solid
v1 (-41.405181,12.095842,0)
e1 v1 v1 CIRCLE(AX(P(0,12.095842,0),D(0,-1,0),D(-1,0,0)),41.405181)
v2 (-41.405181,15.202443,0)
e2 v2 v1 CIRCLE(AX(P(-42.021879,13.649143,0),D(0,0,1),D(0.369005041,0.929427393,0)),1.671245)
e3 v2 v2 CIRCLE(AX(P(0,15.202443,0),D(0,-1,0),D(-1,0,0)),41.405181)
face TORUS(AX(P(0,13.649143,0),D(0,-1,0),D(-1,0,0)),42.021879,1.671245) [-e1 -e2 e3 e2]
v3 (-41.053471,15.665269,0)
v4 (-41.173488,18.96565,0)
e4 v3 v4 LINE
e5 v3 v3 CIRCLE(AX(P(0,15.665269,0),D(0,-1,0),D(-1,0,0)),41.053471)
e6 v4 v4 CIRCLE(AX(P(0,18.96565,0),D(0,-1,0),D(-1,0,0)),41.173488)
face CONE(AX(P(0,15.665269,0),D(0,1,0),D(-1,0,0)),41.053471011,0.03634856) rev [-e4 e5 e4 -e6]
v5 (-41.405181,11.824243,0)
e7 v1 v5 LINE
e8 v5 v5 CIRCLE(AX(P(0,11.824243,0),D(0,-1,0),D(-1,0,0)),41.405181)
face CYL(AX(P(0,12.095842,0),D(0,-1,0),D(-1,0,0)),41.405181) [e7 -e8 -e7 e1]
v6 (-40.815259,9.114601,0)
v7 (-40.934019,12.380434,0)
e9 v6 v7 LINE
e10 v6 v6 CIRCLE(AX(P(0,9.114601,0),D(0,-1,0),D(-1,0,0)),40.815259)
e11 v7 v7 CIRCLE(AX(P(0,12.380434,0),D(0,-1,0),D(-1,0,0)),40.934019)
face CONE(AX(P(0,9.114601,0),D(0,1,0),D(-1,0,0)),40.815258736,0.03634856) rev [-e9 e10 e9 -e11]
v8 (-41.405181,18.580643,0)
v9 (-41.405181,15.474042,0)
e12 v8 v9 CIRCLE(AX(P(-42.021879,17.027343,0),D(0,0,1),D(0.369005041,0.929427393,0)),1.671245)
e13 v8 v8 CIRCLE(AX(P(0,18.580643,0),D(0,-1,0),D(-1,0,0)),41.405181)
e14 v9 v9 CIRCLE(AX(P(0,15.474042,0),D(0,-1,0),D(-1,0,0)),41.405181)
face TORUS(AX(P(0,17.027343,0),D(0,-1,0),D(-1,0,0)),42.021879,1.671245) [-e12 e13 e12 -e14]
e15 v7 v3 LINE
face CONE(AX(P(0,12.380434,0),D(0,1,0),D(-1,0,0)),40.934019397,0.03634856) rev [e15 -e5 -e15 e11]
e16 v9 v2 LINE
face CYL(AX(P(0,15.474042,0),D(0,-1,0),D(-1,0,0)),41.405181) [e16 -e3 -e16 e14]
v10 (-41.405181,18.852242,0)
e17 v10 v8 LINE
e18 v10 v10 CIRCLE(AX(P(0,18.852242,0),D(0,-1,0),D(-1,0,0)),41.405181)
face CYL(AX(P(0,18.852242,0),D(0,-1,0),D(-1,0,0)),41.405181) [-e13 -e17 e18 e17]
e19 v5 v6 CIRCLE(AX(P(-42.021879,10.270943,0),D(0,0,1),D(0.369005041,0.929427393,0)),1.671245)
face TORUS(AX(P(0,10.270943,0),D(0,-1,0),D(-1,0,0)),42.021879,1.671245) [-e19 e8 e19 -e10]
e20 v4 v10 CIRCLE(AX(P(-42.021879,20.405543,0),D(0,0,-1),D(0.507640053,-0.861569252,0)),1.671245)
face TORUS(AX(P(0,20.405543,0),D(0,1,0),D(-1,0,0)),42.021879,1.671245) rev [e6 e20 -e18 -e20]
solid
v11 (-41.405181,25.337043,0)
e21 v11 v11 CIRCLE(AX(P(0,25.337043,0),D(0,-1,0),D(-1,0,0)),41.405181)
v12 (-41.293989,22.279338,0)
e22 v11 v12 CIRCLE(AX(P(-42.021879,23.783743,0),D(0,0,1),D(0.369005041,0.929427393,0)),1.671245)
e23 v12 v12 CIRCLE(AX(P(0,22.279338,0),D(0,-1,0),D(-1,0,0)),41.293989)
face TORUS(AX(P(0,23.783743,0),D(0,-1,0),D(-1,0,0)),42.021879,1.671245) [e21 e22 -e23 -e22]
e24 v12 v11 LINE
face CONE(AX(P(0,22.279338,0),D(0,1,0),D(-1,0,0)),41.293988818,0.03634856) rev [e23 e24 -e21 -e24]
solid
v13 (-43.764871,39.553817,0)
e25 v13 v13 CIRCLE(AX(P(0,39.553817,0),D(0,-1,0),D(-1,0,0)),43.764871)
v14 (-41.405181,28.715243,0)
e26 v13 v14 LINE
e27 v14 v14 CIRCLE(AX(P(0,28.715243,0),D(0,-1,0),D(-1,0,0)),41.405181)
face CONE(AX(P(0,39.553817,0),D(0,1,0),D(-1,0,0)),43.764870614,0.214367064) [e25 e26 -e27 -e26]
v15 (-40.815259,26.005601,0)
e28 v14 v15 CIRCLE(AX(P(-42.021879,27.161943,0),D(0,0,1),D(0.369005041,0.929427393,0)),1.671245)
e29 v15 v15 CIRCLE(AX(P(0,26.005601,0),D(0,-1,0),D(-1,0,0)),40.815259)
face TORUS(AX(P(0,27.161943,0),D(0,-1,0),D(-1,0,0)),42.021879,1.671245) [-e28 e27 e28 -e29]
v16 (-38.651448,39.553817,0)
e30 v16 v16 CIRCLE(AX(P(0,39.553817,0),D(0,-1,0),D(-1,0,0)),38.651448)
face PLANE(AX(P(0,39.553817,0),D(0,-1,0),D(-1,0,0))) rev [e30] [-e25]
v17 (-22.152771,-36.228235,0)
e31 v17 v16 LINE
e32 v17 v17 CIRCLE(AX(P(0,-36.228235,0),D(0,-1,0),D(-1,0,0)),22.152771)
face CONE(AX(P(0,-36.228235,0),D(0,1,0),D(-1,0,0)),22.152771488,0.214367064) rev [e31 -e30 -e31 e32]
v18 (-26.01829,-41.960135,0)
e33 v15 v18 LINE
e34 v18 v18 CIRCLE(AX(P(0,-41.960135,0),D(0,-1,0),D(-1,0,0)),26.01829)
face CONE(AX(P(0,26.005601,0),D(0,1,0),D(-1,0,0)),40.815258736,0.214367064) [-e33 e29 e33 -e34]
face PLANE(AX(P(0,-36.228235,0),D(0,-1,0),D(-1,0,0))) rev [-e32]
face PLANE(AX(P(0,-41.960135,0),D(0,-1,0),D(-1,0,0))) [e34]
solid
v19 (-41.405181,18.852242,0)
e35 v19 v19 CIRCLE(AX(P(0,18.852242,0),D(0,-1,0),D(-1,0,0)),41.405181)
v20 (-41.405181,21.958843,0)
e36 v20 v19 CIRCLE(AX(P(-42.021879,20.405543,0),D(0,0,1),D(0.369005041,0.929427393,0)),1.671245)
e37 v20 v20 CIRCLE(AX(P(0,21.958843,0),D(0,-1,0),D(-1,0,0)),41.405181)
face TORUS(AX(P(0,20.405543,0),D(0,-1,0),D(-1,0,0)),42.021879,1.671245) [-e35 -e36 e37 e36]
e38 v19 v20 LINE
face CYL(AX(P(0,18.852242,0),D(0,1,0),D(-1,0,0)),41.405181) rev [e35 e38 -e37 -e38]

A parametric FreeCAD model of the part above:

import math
import FreeCAD as App
import Part
import Sketcher
from FreeCAD import Vector

doc = App.newDocument("Part")
body = doc.addObject("PartDesign::Body", "Body")

# Sketch on XY plane
sketch1 = body.newObject("Sketcher::SketchObject", "Sketch")
sketch1.AttachmentSupport = (doc.getObject("XY_Plane"), [""])
sketch1.MapMode = "FlatFace"
sketch1.addGeometry(Part.LineSegment(Vector(-38.651448, 39.553817, 0), Vector(-43.764871, 39.553817, 0)), False)
sketch1.addGeometry(Part.LineSegment(Vector(-43.764871, 39.553817, 0), Vector(-41.405181, 28.715243, 0)), False)
sketch1.addGeometry(Part.ArcOfCircle(Part.Circle(Vector(-42.021879, 27.161943, 0), Vector(0, 0, 1), 1.671245), math.radians(68.345731), math.radians(316.218925)), False)
sketch1.addGeometry(Part.LineSegment(Vector(-40.815259, 26.005601, 0), Vector(-26.01829, -41.960135, 0)), False)
sketch1.addGeometry(Part.LineSegment(Vector(-26.01829, -41.960135, 0), Vector(0, -41.960135, 0)), False)
sketch1.addGeometry(Part.LineSegment(Vector(0, -41.960135, 0), Vector(0, -36.228235, 0)), False)
sketch1.addGeometry(Part.LineSegment(Vector(0, -36.228235, 0), Vector(-22.152771, -36.228235, 0)), False)
sketch1.addGeometry(Part.LineSegment(Vector(-22.152771, -36.228235, 0), Vector(-38.651448, 39.553817, 0)), False)
sketch1.addConstraint(Sketcher.Constraint("Coincident", 0, 2, 1, 1))
sketch1.addConstraint(Sketcher.Constraint("Coincident", 1, 2, 2, 1))
sketch1.addConstraint(Sketcher.Constraint("Coincident", 2, 2, 3, 1))
sketch1.addConstraint(Sketcher.Constraint("Coincident", 3, 2, 4, 1))
sketch1.addConstraint(Sketcher.Constraint("Coincident", 4, 2, 5, 1))
sketch1.addConstraint(Sketcher.Constraint("Coincident", 5, 2, 6, 1))
sketch1.addConstraint(Sketcher.Constraint("Coincident", 6, 2, 7, 1))
sketch1.addConstraint(Sketcher.Constraint("Coincident", 7, 2, 0, 1))
sketch1.addConstraint(Sketcher.Constraint("Horizontal", 0))
sketch1.addConstraint(Sketcher.Constraint("Horizontal", 4))
sketch1.addConstraint(Sketcher.Constraint("Vertical", 5))
sketch1.addConstraint(Sketcher.Constraint("Horizontal", 6))
sketch1.addConstraint(Sketcher.Constraint("PointOnObject", 4, 2, -2))
sketch1.addConstraint(Sketcher.Constraint("Parallel", 1, 3))
sketch1.addConstraint(Sketcher.Constraint("Parallel", 3, 7))
sketch1.addConstraint(Sketcher.Constraint("DistanceY", 5, 1, 5, 2, 5.7319))
sketch1.addConstraint(Sketcher.Constraint("Radius", 2, 1.671245))
sketch1.addConstraint(Sketcher.Constraint("DistanceX", 4, 1, 4, 2, 26.01829))
sketch1.addConstraint(Sketcher.Constraint("DistanceX", 6, 2, 6, 1, 22.152771))
sketch1.addConstraint(Sketcher.Constraint("DistanceY", -1, 1, 2, 2, 26.005601))
sketch1.addConstraint(Sketcher.Constraint("DistanceY", 2, 3, 1, 2, 1.553301))
sketch1.addConstraint(Sketcher.Constraint("Distance", 3, 69.557829))
sketch1.addConstraint(Sketcher.Constraint("Distance", 7, 77.557242))
sketch1.addConstraint(Sketcher.Constraint("DistanceX", 0, 2, 0, 1, 5.113423))
sketch1.addConstraint(Sketcher.Constraint("DistanceX", 2, 3, -1, 1, 42.021879))
revolution = body.newObject("PartDesign::Revolution", "Revolution")
revolution.Profile = sketch1
revolution.ReferenceAxis = (sketch1, ["V_Axis"])
revolution.Angle = 360
body2 = doc.addObject("PartDesign::Body", "Body001")

# Sketch on XY plane
sketch2 = body2.newObject("Sketcher::SketchObject", "Sketch001")
sketch2.AttachmentSupport = (doc.getObject("XY_Plane001"), [""])
sketch2.MapMode = "FlatFace"
sketch2.addGeometry(Part.LineSegment(Vector(-40.815259, 9.114601, 0), Vector(-40.934019, 12.380434, 0)), False)
sketch2.addGeometry(Part.LineSegment(Vector(-40.934019, 12.380434, 0), Vector(-41.053471, 15.665269, 0)), False)
sketch2.addGeometry(Part.LineSegment(Vector(-41.053471, 15.665269, 0), Vector(-41.173488, 18.96565, 0)), False)
sketch2.addGeometry(Part.ArcOfCircle(Part.Circle(Vector(-42.021879, 20.405543, 0), Vector(0, 0, 1), 1.671245), math.radians(-68.345731), math.radians(-59.493238)), False)
sketch2.addGeometry(Part.LineSegment(Vector(-41.405181, 18.852242, 0), Vector(-41.405181, 18.580643, 0)), False)
sketch2.addGeometry(Part.ArcOfCircle(Part.Circle(Vector(-42.021879, 17.027343, 0), Vector(0, 0, 1), 1.671245), math.radians(68.345731), math.radians(291.654269)), False)
sketch2.addGeometry(Part.LineSegment(Vector(-41.405181, 15.474042, 0), Vector(-41.405181, 15.202443, 0)), False)
sketch2.addGeometry(Part.ArcOfCircle(Part.Circle(Vector(-42.021879, 13.649143, 0), Vector(0, 0, 1), 1.671245), math.radians(68.345731), math.radians(291.654269)), False)
sketch2.addGeometry(Part.LineSegment(Vector(-41.405181, 12.095842, 0), Vector(-41.405181, 11.824243, 0)), False)
sketch2.addGeometry(Part.ArcOfCircle(Part.Circle(Vector(-42.021879, 10.270943, 0), Vector(0, 0, 1), 1.671245), math.radians(68.345731), math.radians(316.218925)), False)
sketch2.addConstraint(Sketcher.Constraint("Coincident", 0, 2, 1, 1))
sketch2.addConstraint(Sketcher.Constraint("Coincident", 1, 2, 2, 1))
sketch2.addConstraint(Sketcher.Constraint("Coincident", 2, 2, 3, 2))
sketch2.addConstraint(Sketcher.Constraint("Coincident", 3, 1, 4, 1))
sketch2.addConstraint(Sketcher.Constraint("Coincident", 4, 2, 5, 1))
sketch2.addConstraint(Sketcher.Constraint("Coincident", 5, 2, 6, 1))
sketch2.addConstraint(Sketcher.Constraint("Coincident", 6, 2, 7, 1))
sketch2.addConstraint(Sketcher.Constraint("Coincident", 7, 2, 8, 1))
sketch2.addConstraint(Sketcher.Constraint("Coincident", 8, 2, 9, 1))
sketch2.addConstraint(Sketcher.Constraint("Coincident", 9, 2, 0, 1))
sketch2.addConstraint(Sketcher.Constraint("Vertical", 4))
sketch2.addConstraint(Sketcher.Constraint("Vertical", 6))
sketch2.addConstraint(Sketcher.Constraint("Vertical", 8))
sketch2.addConstraint(Sketcher.Constraint("Equal", 3, 5))
sketch2.addConstraint(Sketcher.Constraint("Equal", 5, 7))
sketch2.addConstraint(Sketcher.Constraint("Equal", 7, 9))
sketch2.addConstraint(Sketcher.Constraint("Parallel", 0, 1))
sketch2.addConstraint(Sketcher.Constraint("Parallel", 1, 2))
sketch2.addConstraint(Sketcher.Constraint("Vertical", 3, 3, 5, 3))
sketch2.addConstraint(Sketcher.Constraint("Vertical", 5, 3, 7, 3))
sketch2.addConstraint(Sketcher.Constraint("Vertical", 7, 3, 9, 3))
sketch2.addConstraint(Sketcher.Constraint("Vertical", 4, 2, 5, 2))
sketch2.addConstraint(Sketcher.Constraint("Vertical", 6, 2, 7, 2))
sketch2.addConstraint(Sketcher.Constraint("Equal", 4, 6))
sketch2.addConstraint(Sketcher.Constraint("Equal", 6, 8))
sketch2.addConstraint(Sketcher.Constraint("DistanceY", 4, 2, 4, 1, 0.271599))
sketch2.addConstraint(Sketcher.Constraint("Radius", 3, 1.671245))
sketch2.addConstraint(Sketcher.Constraint("DistanceY", -1, 1, 9, 2, 9.114601))
sketch2.addConstraint(Sketcher.Constraint("DistanceY", 5, 3, 3, 3, 3.3782))
sketch2.addConstraint(Sketcher.Constraint("DistanceX", 3, 3, -1, 1, 42.021879))
sketch2.addConstraint(Sketcher.Constraint("DistanceX", 0, 2, -1, 1, 40.934019))
sketch2.addConstraint(Sketcher.Constraint("DistanceX", 1, 2, -1, 1, 41.053471))
sketch2.addConstraint(Sketcher.Constraint("DistanceY", -1, 1, 1, 2, 15.665269))
sketch2.addConstraint(Sketcher.Constraint("DistanceY", -1, 1, 2, 2, 18.96565))
revolution2 = body2.newObject("PartDesign::Revolution", "Revolution001")
revolution2.Profile = sketch2
revolution2.ReferenceAxis = (sketch2, ["V_Axis"])
revolution2.Angle = 360
body3 = doc.addObject("PartDesign::Body", "Body002")

# Sketch on XY plane
sketch3 = body3.newObject("Sketcher::SketchObject", "Sketch002")
sketch3.AttachmentSupport = (doc.getObject("XY_Plane002"), [""])
sketch3.MapMode = "FlatFace"
sketch3.addGeometry(Part.LineSegment(Vector(-41.293989, 22.279338, 0), Vector(-41.405181, 25.337043, 0)), False)
sketch3.addGeometry(Part.ArcOfCircle(Part.Circle(Vector(-42.021879, 23.783743, 0), Vector(0, 0, 1), 1.671245), math.radians(68.345731), math.radians(295.819507)), False)
sketch3.addConstraint(Sketcher.Constraint("Coincident", 0, 1, 1, 2))
sketch3.addConstraint(Sketcher.Constraint("Coincident", 1, 1, 0, 2))
sketch3.addConstraint(Sketcher.Constraint("Radius", 1, 1.671245))
sketch3.addConstraint(Sketcher.Constraint("DistanceY", 1, 3, 1, 1, 1.553301))
sketch3.addConstraint(Sketcher.Constraint("DistanceX", 1, 3, -1, 1, 42.021879))
sketch3.addConstraint(Sketcher.Constraint("DistanceX", 0, 1, -1, 1, 41.293989))
sketch3.addConstraint(Sketcher.Constraint("DistanceY", -1, 1, 1, 3, 23.783743))
revolution3 = body3.newObject("PartDesign::Revolution", "Revolution002")
revolution3.Profile = sketch3
revolution3.ReferenceAxis = (sketch3, ["V_Axis"])
revolution3.Angle = 360
body4 = doc.addObject("PartDesign::Body", "Body003")

# Sketch on XY plane
sketch4 = body4.newObject("Sketcher::SketchObject", "Sketch003")
sketch4.AttachmentSupport = (doc.getObject("XY_Plane003"), [""])
sketch4.MapMode = "FlatFace"
sketch4.addGeometry(Part.ArcOfCircle(Part.Circle(Vector(-42.021879, 20.405543, 0), Vector(0, 0, 1), 1.671245), math.radians(68.345731), math.radians(291.654269)), False)
sketch4.addGeometry(Part.LineSegment(Vector(-41.405181, 18.852242, 0), Vector(-41.405181, 21.958843, 0)), False)
sketch4.addConstraint(Sketcher.Constraint("Coincident", 0, 1, 1, 2))
sketch4.addConstraint(Sketcher.Constraint("Coincident", 1, 1, 0, 2))
sketch4.addConstraint(Sketcher.Constraint("Vertical", 1))
sketch4.addConstraint(Sketcher.Constraint("DistanceY", 1, 1, 1, 2, 3.106601))
sketch4.addConstraint(Sketcher.Constraint("Radius", 0, 1.671245))
sketch4.addConstraint(Sketcher.Constraint("DistanceX", 0, 3, -1, 1, 42.021879))
sketch4.addConstraint(Sketcher.Constraint("DistanceY", -1, 1, 0, 3, 20.405543))
revolution4 = body4.newObject("PartDesign::Revolution", "Revolution003")
revolution4.Profile = sketch4
revolution4.ReferenceAxis = (sketch4, ["V_Axis"])
revolution4.Angle = 360

doc.recompute()
